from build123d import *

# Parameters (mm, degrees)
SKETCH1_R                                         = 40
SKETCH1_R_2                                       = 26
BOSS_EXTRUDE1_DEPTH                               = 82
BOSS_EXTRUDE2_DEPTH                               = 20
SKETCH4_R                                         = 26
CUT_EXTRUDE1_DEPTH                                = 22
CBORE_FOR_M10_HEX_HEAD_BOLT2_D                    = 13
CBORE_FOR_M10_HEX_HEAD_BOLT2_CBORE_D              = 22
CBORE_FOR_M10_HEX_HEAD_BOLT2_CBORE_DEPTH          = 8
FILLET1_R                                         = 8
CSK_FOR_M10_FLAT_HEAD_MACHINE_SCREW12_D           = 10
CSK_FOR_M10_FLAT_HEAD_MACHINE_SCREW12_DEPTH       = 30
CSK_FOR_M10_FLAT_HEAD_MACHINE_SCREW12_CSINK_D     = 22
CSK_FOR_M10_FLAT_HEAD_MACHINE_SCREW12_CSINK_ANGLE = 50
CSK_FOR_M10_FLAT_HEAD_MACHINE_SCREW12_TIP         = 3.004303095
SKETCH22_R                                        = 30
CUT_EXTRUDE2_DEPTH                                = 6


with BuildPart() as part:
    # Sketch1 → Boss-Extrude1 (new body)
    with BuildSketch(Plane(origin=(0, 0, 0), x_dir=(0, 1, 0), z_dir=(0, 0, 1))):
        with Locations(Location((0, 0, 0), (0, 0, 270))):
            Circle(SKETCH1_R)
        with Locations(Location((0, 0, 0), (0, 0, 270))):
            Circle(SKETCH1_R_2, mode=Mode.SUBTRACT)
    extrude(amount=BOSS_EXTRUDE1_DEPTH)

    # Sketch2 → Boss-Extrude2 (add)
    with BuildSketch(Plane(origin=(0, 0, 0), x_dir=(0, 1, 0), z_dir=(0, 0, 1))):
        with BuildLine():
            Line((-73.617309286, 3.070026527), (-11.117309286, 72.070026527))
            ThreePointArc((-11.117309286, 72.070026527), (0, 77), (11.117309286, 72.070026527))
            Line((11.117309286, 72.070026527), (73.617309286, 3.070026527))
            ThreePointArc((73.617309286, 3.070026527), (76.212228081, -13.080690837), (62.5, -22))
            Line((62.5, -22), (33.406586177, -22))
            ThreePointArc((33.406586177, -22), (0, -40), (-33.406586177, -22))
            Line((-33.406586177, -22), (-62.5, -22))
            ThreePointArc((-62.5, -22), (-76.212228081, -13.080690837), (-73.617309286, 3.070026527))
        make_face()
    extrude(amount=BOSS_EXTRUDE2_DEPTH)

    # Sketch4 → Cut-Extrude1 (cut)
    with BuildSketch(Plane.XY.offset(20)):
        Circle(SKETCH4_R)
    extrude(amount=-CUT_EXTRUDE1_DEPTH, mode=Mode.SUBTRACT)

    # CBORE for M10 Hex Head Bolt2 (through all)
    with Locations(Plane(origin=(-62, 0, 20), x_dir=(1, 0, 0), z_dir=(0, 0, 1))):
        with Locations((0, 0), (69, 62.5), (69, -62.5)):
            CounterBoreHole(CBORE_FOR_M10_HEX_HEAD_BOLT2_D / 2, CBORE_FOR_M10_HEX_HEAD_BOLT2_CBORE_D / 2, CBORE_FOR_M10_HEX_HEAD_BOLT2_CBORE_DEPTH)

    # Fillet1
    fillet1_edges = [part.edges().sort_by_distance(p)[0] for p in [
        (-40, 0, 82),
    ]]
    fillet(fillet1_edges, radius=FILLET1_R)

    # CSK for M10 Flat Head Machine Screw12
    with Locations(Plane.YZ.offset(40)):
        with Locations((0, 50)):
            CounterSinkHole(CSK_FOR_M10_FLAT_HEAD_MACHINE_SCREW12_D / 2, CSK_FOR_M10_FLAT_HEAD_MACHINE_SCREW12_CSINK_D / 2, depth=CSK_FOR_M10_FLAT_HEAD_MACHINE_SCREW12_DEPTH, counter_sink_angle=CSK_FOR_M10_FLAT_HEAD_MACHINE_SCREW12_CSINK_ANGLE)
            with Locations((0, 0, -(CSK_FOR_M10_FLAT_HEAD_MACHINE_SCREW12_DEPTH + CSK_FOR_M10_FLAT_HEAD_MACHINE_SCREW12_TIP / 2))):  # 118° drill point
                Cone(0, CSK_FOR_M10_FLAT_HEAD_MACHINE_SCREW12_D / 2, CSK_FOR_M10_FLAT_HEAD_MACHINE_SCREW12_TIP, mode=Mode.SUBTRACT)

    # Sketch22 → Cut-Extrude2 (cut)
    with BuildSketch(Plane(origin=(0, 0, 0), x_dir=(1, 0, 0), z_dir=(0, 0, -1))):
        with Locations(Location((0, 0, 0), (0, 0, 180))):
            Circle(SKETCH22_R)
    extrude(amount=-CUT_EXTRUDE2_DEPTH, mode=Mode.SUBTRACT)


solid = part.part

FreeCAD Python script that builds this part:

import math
import FreeCAD as App
import Part
import Sketcher

V = App.Vector


def edges_at(feature, points):
    """Names of the edges that pass closest to the given points."""
    edges = feature.Shape.Edges
    near = lambda p: min(range(len(edges)), key=lambda i: edges[i].distToShape(Part.Vertex(*p))[0])
    return sorted({f"Edge{near(p) + 1}" for p in points})

doc = App.newDocument("Part")
params = doc.addObject("Spreadsheet::Sheet", "Params")
for row, (alias, value) in enumerate([
    ("sketch1_diameter", "80 mm"),
    ("sketch1_diameter2", "52 mm"),
    ("pad1_length", "82 mm"),
    ("sketch2_radius", "15 mm"),
    ("sketch2_radius2", "40 mm"),
    ("pad2_length", "20 mm"),
    ("sketch3_diameter", "52 mm"),
    ("pocket1_length", "22 mm"),
    ("sketch4_diameter", "13 mm"),
    ("hole_diameter", "13 mm"),
    ("hole_cbore_diameter", "22 mm"),
    ("hole_cbore_depth", "8 mm"),
    ("fillet_radius", "8 mm"),
    ("sketch5_diameter", "10 mm"),
    ("hole2_diameter", "10 mm"),
    ("hole2_depth", "30 mm"),
    ("hole2_csink_diameter", "22 mm"),
    ("sketch6_diameter", "60 mm"),
    ("pocket2_length", "6 mm"),
], start=1):
    params.set(f"A{row}", alias)
    params.set(f"B{row}", "=" + value)
    params.setAlias(f"B{row}", alias)

body = doc.addObject("PartDesign::Body", "Body")

sketch1 = body.newObject("Sketcher::SketchObject", "Sketch")
sketch1.AttachmentSupport = (doc.getObject("XY_Plane"), [""])
sketch1.MapMode = "FlatFace"
sketch1.addGeometry([
    Part.Circle(V(0, 0, 0), V(0, 0, 1), 40),
    Part.Circle(V(0, 0, 0), V(0, 0, 1), 26),
], False)
sketch1.addConstraint([
    Sketcher.Constraint("Coincident", 0, 3, -1, 1),
    Sketcher.Constraint("Coincident", 1, 3, -1, 1),
    Sketcher.Constraint("Diameter", 0, 80.0),
    Sketcher.Constraint("Diameter", 1, 52.0),
])
sketch1.setExpression("Constraints[2]", "Params.sketch1_diameter")
sketch1.setExpression("Constraints[3]", "Params.sketch1_diameter2")
pad1 = body.newObject("PartDesign::Pad", "Pad")
pad1.Profile = sketch1
pad1.setExpression("Length", "Params.pad1_length")

sketch2 = body.newObject("Sketcher::SketchObject", "Sketch001")
sketch2.AttachmentSupport = (doc.getObject("XY_Plane"), [""])
sketch2.MapMode = "FlatFace"
sketch2.addGeometry([
    Part.LineSegment(V(-72.070027, -11.117309, 0), V(-3.070027, -73.617309, 0)),
    Part.ArcOfCircle(Part.Circle(V(7, -62.5, 0), V(0, 0, 1), 15), math.radians(-132.170192), math.radians(0)),
    Part.LineSegment(V(22, -62.5, 0), V(22, -33.406586, 0)),
    Part.ArcOfCircle(Part.Circle(V(0, 0, 0), V(0, 0, 1), 40), math.radians(-56.632987), math.radians(56.632987)),
    Part.LineSegment(V(22, 33.406586, 0), V(22, 62.5, 0)),
    Part.ArcOfCircle(Part.Circle(V(7, 62.5, 0), V(0, 0, 1), 15), math.radians(0), math.radians(132.170192)),
    Part.LineSegment(V(-3.070027, 73.617309, 0), V(-72.070027, 11.117309, 0)),
    Part.ArcOfCircle(Part.Circle(V(-62, 0, 0), V(0, 0, 1), 15), math.radians(132.170192), math.radians(227.829808)),
], False)
sketch2.addConstraint([
    Sketcher.Constraint("Tangent", 0, 2, 1, 1),
    Sketcher.Constraint("Tangent", 1, 2, 2, 1),
    Sketcher.Constraint("Coincident", 2, 2, 3, 1),
    Sketcher.Constraint("Coincident", 3, 2, 4, 1),
    Sketcher.Constraint("Tangent", 4, 2, 5, 1),
    Sketcher.Constraint("Tangent", 5, 2, 6, 1),
    Sketcher.Constraint("Tangent", 6, 2, 7, 1),
    Sketcher.Constraint("Tangent", 7, 2, 0, 1),
    Sketcher.Constraint("Vertical", 2),
    Sketcher.Constraint("Vertical", 4),
    Sketcher.Constraint("Coincident", 3, 3, -1, 1),
    Sketcher.Constraint("Equal", 1, 5),
    Sketcher.Constraint("Equal", 5, 7),
    Sketcher.Constraint("Symmetric", 1, 3, 5, 3, -1),
    Sketcher.Constraint("PointOnObject", 7, 3, -1),
    Sketcher.Constraint("Radius", 1, 15.0),
    Sketcher.Constraint("Radius", 3, 40.0),
    Sketcher.Constraint("DistanceX", -1, 1, 1, 3, 7.0),
    Sketcher.Constraint("DistanceX", 7, 3, -1, 1, 62.0),
    Sketcher.Constraint("DistanceY", 1, 3, 5, 3, 125.0),
])
sketch2.setExpression("Constraints[15]", "Params.sketch2_radius")
sketch2.setExpression("Constraints[16]", "Params.sketch2_radius2")
pad2 = body.newObject("PartDesign::Pad", "Pad001")
pad2.Profile = sketch2
pad2.setExpression("Length", "Params.pad2_length")

sketch3 = body.newObject("Sketcher::SketchObject", "Sketch002")
sketch3.AttachmentSupport = (doc.getObject("XY_Plane"), [""])
sketch3.MapMode = "FlatFace"
sketch3.AttachmentOffset = App.Placement(V(0, 0, 20), App.Rotation())
sketch3.addGeometry(Part.Circle(V(0, 0, 0), V(0, 0, 1), 26), False)
sketch3.addConstraint([
    Sketcher.Constraint("Coincident", 0, 3, -1, 1),
    Sketcher.Constraint("Diameter", 0, 52.0),
])
sketch3.setExpression("Constraints[1]", "Params.sketch3_diameter")
pocket1 = body.newObject("PartDesign::Pocket", "Pocket")
pocket1.Profile = sketch3
pocket1.setExpression("Length", "Params.pocket1_length")

sketch4 = body.newObject("Sketcher::SketchObject", "Sketch003")
sketch4.AttachmentSupport = (doc.getObject("XY_Plane"), [""])
sketch4.MapMode = "FlatFace"
sketch4.AttachmentOffset = App.Placement(V(0, 0, 20), App.Rotation())
sketch4.addGeometry([
    Part.Circle(V(-62, 0, 0), V(0, 0, 1), 6.5),
    Part.Circle(V(7, 62.5, 0), V(0, 0, 1), 6.5),
    Part.Circle(V(7, -62.5, 0), V(0, 0, 1), 6.5),
], False)
sketch4.addConstraint([
    Sketcher.Constraint("Equal", 0, 1),
    Sketcher.Constraint("Equal", 1, 2),
    Sketcher.Constraint("Symmetric", 1, 3, 2, 3, -1),
    Sketcher.Constraint("PointOnObject", 0, 3, -1),
    Sketcher.Constraint("Diameter", 0, 13.0),
    Sketcher.Constraint("DistanceX", 0, 3, -1, 1, 62.0),
    Sketcher.Constraint("DistanceX", -1, 1, 1, 3, 7.0),
    Sketcher.Constraint("DistanceY", 2, 3, 1, 3, 125.0),
])
sketch4.setExpression("Constraints[4]", "Params.sketch4_diameter")
doc.recompute()
hole = body.newObject("PartDesign::Hole", "Hole")
hole.Profile = sketch4
hole.ThreadType = "None"
hole.setExpression("Diameter", "Params.hole_diameter")
hole.DepthType = "ThroughAll"
hole.HoleCutType = "Counterbore"
hole.setExpression("HoleCutDiameter", "Params.hole_cbore_diameter")
hole.setExpression("HoleCutDepth", "Params.hole_cbore_depth")
doc.recompute()

fillet = body.newObject("PartDesign::Fillet", "Fillet")
fillet.Base = (hole, edges_at(hole, [(-40, 0, 82)]))
fillet.setExpression("Radius", "Params.fillet_radius")

sketch5 = body.newObject("Sketcher::SketchObject", "Sketch004")
sketch5.AttachmentSupport = (doc.getObject("YZ_Plane"), [""])
sketch5.MapMode = "FlatFace"
sketch5.AttachmentOffset = App.Placement(V(0, 0, 40), App.Rotation())
sketch5.addGeometry(Part.Circle(V(0, 50, 0), V(0, 0, 1), 5), False)
sketch5.addConstraint([
    Sketcher.Constraint("PointOnObject", 0, 3, -2),
    Sketcher.Constraint("Diameter", 0, 10.0),
    Sketcher.Constraint("DistanceY", -1, 1, 0, 3, 50.0),
])
sketch5.setExpression("Constraints[1]", "Params.sketch5_diameter")
doc.recompute()
hole2 = body.newObject("PartDesign::Hole", "Hole001")
hole2.Profile = sketch5
hole2.ThreadType = "None"
hole2.setExpression("Diameter", "Params.hole2_diameter")
hole2.DepthType = "Dimension"
hole2.setExpression("Depth", "Params.hole2_depth")
hole2.DrillPoint = "Angled"
hole2.DrillPointAngle = 118
hole2.HoleCutType = "Countersink"
hole2.setExpression("HoleCutDiameter", "Params.hole2_csink_diameter")
hole2.HoleCutCountersinkAngle = 50

sketch6 = body.newObject("Sketcher::SketchObject", "Sketch005")
sketch6.AttachmentSupport = (doc.getObject("XY_Plane"), [""])
sketch6.MapMode = "FlatFace"
sketch6.addGeometry(Part.Circle(V(0, 0, 0), V(0, 0, 1), 30), False)
sketch6.addConstraint([
    Sketcher.Constraint("Coincident", 0, 3, -1, 1),
    Sketcher.Constraint("Diameter", 0, 60.0),
])
sketch6.setExpression("Constraints[1]", "Params.sketch6_diameter")
pocket2 = body.newObject("PartDesign::Pocket", "Pocket001")
pocket2.Profile = sketch6
pocket2.setExpression("Length", "Params.pocket2_length")
pocket2.Reversed = True

doc.recompute()
